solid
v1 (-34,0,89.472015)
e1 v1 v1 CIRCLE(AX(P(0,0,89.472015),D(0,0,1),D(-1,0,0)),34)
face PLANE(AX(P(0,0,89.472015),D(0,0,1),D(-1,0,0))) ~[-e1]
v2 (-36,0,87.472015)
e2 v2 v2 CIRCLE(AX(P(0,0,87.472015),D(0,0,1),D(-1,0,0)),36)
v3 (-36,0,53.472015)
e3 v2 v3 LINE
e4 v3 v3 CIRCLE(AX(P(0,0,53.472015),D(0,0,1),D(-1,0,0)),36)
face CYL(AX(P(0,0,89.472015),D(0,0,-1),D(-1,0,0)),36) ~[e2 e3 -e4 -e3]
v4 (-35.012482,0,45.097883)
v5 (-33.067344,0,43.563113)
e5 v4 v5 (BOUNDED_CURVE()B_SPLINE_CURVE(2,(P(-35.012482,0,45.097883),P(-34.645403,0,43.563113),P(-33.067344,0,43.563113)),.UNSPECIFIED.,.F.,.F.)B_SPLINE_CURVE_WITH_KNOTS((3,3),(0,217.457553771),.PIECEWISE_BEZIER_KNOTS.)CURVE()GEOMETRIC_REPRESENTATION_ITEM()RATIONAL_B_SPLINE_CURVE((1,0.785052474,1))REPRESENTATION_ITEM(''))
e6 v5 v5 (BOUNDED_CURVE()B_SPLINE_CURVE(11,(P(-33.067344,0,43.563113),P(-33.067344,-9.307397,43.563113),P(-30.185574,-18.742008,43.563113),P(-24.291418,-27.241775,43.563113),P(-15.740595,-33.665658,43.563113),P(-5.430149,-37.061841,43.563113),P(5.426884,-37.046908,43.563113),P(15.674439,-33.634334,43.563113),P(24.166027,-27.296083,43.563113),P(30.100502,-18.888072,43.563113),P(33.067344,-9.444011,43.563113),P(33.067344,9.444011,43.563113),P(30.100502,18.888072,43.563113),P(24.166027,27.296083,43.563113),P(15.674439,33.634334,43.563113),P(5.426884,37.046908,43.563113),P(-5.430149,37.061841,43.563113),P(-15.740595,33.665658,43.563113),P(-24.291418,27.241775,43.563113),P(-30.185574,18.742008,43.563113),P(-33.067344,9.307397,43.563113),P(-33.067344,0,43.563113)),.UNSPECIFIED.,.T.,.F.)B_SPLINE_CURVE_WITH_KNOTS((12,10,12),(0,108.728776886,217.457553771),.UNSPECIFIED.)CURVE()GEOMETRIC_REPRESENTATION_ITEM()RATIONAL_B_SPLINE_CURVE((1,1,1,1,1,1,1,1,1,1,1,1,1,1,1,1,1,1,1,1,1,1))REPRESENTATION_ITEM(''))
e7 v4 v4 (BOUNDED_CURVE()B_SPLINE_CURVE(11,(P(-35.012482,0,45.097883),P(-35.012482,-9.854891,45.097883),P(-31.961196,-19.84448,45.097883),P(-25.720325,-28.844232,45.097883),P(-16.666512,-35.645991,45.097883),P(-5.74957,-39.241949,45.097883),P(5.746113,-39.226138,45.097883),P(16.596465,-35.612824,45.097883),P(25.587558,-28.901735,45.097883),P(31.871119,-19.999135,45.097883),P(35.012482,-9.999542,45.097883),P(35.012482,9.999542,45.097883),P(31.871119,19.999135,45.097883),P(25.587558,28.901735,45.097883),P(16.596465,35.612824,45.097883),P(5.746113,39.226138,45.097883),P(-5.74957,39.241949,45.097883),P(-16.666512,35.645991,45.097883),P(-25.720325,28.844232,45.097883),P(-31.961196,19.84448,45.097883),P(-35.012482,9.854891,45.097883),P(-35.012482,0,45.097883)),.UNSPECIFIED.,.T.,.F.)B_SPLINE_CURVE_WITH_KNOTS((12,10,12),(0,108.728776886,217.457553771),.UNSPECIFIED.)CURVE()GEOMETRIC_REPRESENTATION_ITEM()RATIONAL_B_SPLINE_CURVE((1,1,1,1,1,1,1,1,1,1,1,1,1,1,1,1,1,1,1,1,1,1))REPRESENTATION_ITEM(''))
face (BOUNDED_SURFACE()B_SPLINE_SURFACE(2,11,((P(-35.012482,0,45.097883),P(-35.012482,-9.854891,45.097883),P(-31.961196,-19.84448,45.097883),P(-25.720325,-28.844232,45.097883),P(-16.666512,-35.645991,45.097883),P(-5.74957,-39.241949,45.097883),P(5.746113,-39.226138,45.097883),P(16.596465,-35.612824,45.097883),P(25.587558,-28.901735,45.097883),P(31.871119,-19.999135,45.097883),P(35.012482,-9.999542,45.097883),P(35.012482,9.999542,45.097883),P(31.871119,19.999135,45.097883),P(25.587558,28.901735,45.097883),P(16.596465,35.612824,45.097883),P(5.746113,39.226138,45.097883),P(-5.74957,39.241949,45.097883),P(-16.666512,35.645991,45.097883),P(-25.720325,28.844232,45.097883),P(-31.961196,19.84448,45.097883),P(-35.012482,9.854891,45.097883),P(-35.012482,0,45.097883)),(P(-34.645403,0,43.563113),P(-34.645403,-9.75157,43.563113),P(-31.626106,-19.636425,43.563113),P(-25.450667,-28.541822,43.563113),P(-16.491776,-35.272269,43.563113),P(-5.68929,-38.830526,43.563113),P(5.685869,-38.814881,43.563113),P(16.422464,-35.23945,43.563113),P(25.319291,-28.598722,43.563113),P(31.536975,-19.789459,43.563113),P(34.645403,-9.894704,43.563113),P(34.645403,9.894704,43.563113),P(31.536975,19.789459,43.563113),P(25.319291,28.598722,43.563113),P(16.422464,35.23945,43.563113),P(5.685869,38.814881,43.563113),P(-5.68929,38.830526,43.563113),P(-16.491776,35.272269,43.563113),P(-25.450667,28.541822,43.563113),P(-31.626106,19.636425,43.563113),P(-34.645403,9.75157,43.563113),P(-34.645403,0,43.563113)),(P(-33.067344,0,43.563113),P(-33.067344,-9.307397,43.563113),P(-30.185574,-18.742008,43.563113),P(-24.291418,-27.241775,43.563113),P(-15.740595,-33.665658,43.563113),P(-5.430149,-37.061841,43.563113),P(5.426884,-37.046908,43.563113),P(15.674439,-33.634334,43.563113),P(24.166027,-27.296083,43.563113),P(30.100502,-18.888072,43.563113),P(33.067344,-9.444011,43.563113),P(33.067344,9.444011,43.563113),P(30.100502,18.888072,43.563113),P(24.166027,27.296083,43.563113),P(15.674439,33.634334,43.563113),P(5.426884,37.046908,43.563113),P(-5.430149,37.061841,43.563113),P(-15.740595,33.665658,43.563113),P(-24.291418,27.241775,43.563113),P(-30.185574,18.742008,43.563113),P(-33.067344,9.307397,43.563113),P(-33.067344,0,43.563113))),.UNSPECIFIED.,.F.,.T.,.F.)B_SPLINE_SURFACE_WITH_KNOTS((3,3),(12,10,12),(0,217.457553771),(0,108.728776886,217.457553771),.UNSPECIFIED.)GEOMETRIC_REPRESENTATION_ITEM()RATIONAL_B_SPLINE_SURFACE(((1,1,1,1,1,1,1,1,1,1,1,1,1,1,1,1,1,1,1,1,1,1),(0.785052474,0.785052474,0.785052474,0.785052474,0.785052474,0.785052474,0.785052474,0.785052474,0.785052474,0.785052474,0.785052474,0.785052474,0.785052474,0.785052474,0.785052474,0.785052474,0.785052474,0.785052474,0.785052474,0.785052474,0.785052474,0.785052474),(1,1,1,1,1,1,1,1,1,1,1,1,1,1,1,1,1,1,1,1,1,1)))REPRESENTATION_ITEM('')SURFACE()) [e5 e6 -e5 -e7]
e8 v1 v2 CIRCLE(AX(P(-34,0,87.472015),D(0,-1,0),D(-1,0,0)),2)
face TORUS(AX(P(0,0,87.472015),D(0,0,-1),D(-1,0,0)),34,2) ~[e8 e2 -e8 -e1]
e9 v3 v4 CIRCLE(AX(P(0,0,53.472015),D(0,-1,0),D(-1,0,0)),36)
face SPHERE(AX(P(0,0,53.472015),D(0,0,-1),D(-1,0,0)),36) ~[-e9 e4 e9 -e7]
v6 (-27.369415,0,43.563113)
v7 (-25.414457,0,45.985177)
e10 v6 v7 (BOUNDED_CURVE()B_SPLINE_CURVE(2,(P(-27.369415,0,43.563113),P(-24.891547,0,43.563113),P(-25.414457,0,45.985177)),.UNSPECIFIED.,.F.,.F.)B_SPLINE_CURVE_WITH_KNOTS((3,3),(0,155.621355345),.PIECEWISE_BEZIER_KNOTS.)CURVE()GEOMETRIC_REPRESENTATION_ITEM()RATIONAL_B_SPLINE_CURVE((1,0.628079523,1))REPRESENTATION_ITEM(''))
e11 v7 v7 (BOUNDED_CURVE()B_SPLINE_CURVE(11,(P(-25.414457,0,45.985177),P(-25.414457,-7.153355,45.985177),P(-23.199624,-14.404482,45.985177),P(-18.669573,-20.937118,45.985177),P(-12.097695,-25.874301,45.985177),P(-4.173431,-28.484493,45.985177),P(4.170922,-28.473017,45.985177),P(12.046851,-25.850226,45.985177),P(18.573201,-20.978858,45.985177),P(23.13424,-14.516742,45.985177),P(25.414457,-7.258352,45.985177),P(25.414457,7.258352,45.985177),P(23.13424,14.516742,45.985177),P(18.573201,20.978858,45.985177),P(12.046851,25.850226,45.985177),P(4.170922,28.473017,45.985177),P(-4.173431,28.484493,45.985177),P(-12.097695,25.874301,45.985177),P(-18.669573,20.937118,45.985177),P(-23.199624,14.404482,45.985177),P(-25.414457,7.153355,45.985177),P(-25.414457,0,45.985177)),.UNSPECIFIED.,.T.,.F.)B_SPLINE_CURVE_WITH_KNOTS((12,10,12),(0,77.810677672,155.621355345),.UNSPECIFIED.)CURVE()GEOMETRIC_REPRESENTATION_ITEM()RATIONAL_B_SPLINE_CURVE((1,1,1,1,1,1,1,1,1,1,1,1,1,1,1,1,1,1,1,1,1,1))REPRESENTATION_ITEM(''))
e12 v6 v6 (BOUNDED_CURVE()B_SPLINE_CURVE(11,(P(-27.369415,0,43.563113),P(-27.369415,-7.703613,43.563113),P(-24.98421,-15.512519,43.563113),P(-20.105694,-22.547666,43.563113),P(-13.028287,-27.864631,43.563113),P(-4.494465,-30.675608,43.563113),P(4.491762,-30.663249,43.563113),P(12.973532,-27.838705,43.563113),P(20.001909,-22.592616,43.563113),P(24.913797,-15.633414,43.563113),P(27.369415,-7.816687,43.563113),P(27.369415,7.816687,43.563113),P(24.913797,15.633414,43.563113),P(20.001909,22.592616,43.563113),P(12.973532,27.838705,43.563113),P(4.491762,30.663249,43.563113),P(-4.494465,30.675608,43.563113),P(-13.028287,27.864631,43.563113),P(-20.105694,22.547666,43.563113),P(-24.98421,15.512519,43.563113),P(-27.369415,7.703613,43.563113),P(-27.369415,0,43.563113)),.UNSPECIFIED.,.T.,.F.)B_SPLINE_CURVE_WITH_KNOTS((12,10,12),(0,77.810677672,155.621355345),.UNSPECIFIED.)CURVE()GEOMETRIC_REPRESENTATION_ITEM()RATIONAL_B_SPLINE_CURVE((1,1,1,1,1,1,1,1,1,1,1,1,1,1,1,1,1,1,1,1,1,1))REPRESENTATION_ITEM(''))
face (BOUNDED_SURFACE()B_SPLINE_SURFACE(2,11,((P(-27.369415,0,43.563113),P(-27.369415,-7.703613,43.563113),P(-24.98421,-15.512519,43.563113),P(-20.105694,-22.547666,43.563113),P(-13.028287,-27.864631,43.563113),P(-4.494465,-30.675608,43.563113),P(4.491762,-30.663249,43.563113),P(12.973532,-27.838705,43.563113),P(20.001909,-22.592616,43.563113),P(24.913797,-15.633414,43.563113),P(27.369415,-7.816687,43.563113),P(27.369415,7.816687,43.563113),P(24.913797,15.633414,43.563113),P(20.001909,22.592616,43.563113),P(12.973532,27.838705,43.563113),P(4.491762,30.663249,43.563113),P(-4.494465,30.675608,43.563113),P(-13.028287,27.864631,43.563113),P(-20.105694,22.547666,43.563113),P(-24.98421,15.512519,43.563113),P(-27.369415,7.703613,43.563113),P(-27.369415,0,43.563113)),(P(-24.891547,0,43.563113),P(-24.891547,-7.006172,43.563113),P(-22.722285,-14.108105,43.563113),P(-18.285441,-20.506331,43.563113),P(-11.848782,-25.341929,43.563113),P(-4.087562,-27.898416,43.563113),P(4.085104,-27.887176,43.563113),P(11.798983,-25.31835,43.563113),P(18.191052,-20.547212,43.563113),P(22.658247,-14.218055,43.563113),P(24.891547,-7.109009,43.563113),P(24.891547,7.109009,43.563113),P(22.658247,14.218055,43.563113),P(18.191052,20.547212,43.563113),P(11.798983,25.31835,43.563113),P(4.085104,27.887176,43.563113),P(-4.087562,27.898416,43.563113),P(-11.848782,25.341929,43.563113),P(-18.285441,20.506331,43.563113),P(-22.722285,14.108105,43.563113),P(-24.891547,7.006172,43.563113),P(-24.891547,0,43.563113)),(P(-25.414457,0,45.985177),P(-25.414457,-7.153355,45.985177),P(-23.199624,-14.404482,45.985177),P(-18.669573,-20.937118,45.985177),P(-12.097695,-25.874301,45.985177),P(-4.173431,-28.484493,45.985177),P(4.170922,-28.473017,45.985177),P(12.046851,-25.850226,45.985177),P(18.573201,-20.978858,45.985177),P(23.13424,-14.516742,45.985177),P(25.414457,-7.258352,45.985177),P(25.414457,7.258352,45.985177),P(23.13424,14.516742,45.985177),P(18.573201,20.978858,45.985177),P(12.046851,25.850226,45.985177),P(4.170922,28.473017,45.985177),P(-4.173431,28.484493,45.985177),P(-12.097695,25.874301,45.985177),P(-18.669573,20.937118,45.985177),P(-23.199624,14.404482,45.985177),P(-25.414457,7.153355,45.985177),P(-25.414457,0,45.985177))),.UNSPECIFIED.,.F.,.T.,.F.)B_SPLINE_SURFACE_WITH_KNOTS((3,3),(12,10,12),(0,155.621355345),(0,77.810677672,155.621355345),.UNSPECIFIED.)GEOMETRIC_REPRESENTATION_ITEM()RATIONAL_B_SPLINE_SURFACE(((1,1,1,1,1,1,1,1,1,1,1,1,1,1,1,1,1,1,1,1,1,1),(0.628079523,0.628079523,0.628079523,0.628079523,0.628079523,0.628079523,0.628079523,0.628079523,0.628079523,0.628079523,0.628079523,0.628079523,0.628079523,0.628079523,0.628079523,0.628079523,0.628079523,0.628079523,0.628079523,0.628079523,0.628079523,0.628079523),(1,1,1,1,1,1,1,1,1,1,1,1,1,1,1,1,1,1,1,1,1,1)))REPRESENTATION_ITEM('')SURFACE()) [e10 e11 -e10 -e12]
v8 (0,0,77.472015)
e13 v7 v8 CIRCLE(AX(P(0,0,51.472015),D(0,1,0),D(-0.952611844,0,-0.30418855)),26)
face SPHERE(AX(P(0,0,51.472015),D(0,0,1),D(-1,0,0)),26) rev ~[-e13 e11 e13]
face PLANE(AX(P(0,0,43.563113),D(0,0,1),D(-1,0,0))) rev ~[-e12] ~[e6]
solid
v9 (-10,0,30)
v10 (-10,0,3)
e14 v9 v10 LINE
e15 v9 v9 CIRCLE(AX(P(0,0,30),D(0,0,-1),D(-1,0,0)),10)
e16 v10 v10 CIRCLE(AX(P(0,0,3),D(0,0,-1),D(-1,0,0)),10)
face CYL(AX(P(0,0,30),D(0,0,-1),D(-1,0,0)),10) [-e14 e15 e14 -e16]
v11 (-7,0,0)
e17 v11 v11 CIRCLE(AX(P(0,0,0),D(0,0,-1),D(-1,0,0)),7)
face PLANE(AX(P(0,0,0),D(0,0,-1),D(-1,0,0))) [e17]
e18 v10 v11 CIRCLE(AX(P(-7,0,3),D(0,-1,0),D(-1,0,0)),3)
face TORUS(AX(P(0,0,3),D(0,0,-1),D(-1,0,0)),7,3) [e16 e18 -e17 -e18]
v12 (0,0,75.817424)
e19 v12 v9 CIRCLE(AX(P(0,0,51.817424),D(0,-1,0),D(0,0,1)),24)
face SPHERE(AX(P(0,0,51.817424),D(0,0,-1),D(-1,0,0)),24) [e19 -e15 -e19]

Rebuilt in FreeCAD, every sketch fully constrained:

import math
import FreeCAD as App
import Part
import Sketcher


def edges_at(feature, points):
    """Names of the edges that pass closest to the given points."""
    edges = feature.Shape.Edges
    near = lambda p: min(range(len(edges)), key=lambda i: edges[i].distToShape(Part.Vertex(*p))[0])
    return sorted({f"Edge{near(p) + 1}" for p in points})

doc = App.newDocument("Part")
body = doc.addObject("PartDesign::Body", "Body")

# Sketch on XZ plane
sketch1 = body.newObject("Sketcher::SketchObject", "Sketch")
sketch1.AttachmentSupport = (doc.getObject("XZ_Plane"), [""])
sketch1.MapMode = "FlatFace"
sketch1.addGeometry(Part.LineSegment(App.Vector(-10, 30, 0), App.Vector(-10, 0, 0)), False)
sketch1.addGeometry(Part.LineSegment(App.Vector(-10, 0, 0), App.Vector(0, 0, 0)), False)
sketch1.addGeometry(Part.LineSegment(App.Vector(0, 0, 0), App.Vector(0, 76, 0)), False)
sketch1.addGeometry(Part.ArcOfCircle(Part.Circle(App.Vector(0, 52, 0), App.Vector(0, 0, 1), 24), math.radians(90), math.radians(245)), False)
sketch1.addConstraint(Sketcher.Constraint("Coincident", 0, 2, 1, 1))
sketch1.addConstraint(Sketcher.Constraint("Coincident", 1, 2, 2, 1))
sketch1.addConstraint(Sketcher.Constraint("Coincident", 2, 2, 3, 1))
sketch1.addConstraint(Sketcher.Constraint("Coincident", 3, 2, 0, 1))
sketch1.addConstraint(Sketcher.Constraint("Vertical", 0))
sketch1.addConstraint(Sketcher.Constraint("Horizontal", 1))
sketch1.addConstraint(Sketcher.Constraint("Vertical", 2))
sketch1.addConstraint(Sketcher.Constraint("Coincident", 1, 2, -1, 1))
sketch1.addConstraint(Sketcher.Constraint("PointOnObject", 3, 3, -2))
sketch1.addConstraint(Sketcher.Constraint("Radius", 3, 24.0))
sketch1.addConstraint(Sketcher.Constraint("DistanceX", 1, 1, 1, 2, 10.0))
sketch1.addConstraint(Sketcher.Constraint("DistanceY", 0, 2, 0, 1, 30.0))
revolution = body.newObject("PartDesign::Revolution", "Revolution")
revolution.Profile = sketch1
revolution.ReferenceAxis = (sketch1, ["V_Axis"])
revolution.Angle = 360
doc.recompute()

fillet = body.newObject("PartDesign::Fillet", "Fillet")
fillet.Base = (revolution, edges_at(revolution, [(10, 0, 0)]))
fillet.Radius = 3
body2 = doc.addObject("PartDesign::Body", "Body001")

# Sketch on XZ plane
sketch2 = body2.newObject("Sketcher::SketchObject", "Sketch001")
sketch2.AttachmentSupport = (doc.getObject("XZ_Plane001"), [""])
sketch2.MapMode = "FlatFace"
sketch2.addGeometry(Part.ArcOfCircle(Part.Circle(App.Vector(0, 51, 0), App.Vector(0, 0, 1), 26), math.radians(90), math.radians(198)), False)
sketch2.addGeometry(Part.LineSegment(App.Vector(0, 77, 0), App.Vector(0, 89, 0)), False)
sketch2.addGeometry(Part.LineSegment(App.Vector(0, 89, 0), App.Vector(-36, 89, 0)), False)
sketch2.addGeometry(Part.LineSegment(App.Vector(-36, 89, 0), App.Vector(-36, 53, 0)), False)
sketch2.addGeometry(Part.ArcOfCircle(Part.Circle(App.Vector(0, 53, 0), App.Vector(0, 0, 1), 36), math.radians(180), math.radians(195.98)), False)
sketch2.addGeometry(Part.LineSegment(App.Vector(-35, 44, 0), App.Vector(-25, 44, 0)), False)
sketch2.addConstraint(Sketcher.Constraint("Coincident", 0, 1, 1, 1))
sketch2.addConstraint(Sketcher.Constraint("Coincident", 1, 2, 2, 1))
sketch2.addConstraint(Sketcher.Constraint("Coincident", 2, 2, 3, 1))
sketch2.addConstraint(Sketcher.Constraint("Tangent", 3, 2, 4, 1))
sketch2.addConstraint(Sketcher.Constraint("Coincident", 4, 2, 5, 1))
sketch2.addConstraint(Sketcher.Constraint("Coincident", 5, 2, 0, 2))
sketch2.addConstraint(Sketcher.Constraint("Vertical", 1))
sketch2.addConstraint(Sketcher.Constraint("Horizontal", 2))
sketch2.addConstraint(Sketcher.Constraint("Vertical", 3))
sketch2.addConstraint(Sketcher.Constraint("Horizontal", 5))
sketch2.addConstraint(Sketcher.Constraint("PointOnObject", 0, 3, -2))
sketch2.addConstraint(Sketcher.Constraint("PointOnObject", 4, 3, -2))
sketch2.addConstraint(Sketcher.Constraint("PointOnObject", 0, 1, -2))
sketch2.addConstraint(Sketcher.Constraint("Equal", 2, 3))
sketch2.addConstraint(Sketcher.Constraint("Radius", 0, 26.0))
sketch2.addConstraint(Sketcher.Constraint("Radius", 4, 36.0))
sketch2.addConstraint(Sketcher.Constraint("DistanceY", 1, 1, 1, 2, 12.0))
sketch2.addConstraint(Sketcher.Constraint("DistanceX", 5, 1, 5, 2, 9.841537))
sketch2.addConstraint(Sketcher.Constraint("DistanceY", -1, 1, 0, 3, 51.472015))
revolution2 = body2.newObject("PartDesign::Revolution", "Revolution001")
revolution2.Profile = sketch2
revolution2.ReferenceAxis = (sketch2, ["V_Axis"])
revolution2.Angle = 360
doc.recompute()

fillet2 = body2.newObject("PartDesign::Fillet", "Fillet001")
fillet2.Base = (revolution2, edges_at(revolution2, [
    (36, 0, 53.472),
    (34.609, 0, 43.563),
    (-35.651, 0, 48.469),
    (36, 0, 89.472),
]))
fillet2.Radius = 2
doc.recompute()

fillet3 = body2.newObject("PartDesign::Fillet", "Fillet002")
fillet3.Base = (fillet2, edges_at(fillet2, [(24.768, 0, 43.563)]))
fillet3.Radius = 2

doc.recompute()
